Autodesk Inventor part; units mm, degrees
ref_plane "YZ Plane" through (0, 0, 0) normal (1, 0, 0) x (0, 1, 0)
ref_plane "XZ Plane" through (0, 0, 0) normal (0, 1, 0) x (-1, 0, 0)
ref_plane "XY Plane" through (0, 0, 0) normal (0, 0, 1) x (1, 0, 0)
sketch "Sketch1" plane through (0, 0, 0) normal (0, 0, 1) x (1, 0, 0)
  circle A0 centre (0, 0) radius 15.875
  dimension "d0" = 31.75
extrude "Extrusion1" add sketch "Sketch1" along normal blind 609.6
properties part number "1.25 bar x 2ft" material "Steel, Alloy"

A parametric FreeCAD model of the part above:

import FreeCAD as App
import Part
import Sketcher
Q = App.Units.Quantity

doc = App.newDocument("Part")
body = doc.addObject("PartDesign::Body", "Body")

sketch1 = body.newObject("Sketcher::SketchObject", "Sketch")
sketch1.AttachmentSupport = (doc.getObject("XY_Plane"), [""])
sketch1.MapMode = "FlatFace"
sketch1.addGeometry(Part.Circle(App.Vector(0, 0, 0), App.Vector(0, 0, 1), 16), False)
sketch1.addConstraint([
    Sketcher.Constraint("Coincident", 0, 3, -1, 1),
    Sketcher.Constraint("Diameter", 0, Q("1.25 in")),
])
pad1 = body.newObject("PartDesign::Pad", "Pad")
pad1.Profile = sketch1
pad1.Length = Q("24 in")

doc.recompute()
